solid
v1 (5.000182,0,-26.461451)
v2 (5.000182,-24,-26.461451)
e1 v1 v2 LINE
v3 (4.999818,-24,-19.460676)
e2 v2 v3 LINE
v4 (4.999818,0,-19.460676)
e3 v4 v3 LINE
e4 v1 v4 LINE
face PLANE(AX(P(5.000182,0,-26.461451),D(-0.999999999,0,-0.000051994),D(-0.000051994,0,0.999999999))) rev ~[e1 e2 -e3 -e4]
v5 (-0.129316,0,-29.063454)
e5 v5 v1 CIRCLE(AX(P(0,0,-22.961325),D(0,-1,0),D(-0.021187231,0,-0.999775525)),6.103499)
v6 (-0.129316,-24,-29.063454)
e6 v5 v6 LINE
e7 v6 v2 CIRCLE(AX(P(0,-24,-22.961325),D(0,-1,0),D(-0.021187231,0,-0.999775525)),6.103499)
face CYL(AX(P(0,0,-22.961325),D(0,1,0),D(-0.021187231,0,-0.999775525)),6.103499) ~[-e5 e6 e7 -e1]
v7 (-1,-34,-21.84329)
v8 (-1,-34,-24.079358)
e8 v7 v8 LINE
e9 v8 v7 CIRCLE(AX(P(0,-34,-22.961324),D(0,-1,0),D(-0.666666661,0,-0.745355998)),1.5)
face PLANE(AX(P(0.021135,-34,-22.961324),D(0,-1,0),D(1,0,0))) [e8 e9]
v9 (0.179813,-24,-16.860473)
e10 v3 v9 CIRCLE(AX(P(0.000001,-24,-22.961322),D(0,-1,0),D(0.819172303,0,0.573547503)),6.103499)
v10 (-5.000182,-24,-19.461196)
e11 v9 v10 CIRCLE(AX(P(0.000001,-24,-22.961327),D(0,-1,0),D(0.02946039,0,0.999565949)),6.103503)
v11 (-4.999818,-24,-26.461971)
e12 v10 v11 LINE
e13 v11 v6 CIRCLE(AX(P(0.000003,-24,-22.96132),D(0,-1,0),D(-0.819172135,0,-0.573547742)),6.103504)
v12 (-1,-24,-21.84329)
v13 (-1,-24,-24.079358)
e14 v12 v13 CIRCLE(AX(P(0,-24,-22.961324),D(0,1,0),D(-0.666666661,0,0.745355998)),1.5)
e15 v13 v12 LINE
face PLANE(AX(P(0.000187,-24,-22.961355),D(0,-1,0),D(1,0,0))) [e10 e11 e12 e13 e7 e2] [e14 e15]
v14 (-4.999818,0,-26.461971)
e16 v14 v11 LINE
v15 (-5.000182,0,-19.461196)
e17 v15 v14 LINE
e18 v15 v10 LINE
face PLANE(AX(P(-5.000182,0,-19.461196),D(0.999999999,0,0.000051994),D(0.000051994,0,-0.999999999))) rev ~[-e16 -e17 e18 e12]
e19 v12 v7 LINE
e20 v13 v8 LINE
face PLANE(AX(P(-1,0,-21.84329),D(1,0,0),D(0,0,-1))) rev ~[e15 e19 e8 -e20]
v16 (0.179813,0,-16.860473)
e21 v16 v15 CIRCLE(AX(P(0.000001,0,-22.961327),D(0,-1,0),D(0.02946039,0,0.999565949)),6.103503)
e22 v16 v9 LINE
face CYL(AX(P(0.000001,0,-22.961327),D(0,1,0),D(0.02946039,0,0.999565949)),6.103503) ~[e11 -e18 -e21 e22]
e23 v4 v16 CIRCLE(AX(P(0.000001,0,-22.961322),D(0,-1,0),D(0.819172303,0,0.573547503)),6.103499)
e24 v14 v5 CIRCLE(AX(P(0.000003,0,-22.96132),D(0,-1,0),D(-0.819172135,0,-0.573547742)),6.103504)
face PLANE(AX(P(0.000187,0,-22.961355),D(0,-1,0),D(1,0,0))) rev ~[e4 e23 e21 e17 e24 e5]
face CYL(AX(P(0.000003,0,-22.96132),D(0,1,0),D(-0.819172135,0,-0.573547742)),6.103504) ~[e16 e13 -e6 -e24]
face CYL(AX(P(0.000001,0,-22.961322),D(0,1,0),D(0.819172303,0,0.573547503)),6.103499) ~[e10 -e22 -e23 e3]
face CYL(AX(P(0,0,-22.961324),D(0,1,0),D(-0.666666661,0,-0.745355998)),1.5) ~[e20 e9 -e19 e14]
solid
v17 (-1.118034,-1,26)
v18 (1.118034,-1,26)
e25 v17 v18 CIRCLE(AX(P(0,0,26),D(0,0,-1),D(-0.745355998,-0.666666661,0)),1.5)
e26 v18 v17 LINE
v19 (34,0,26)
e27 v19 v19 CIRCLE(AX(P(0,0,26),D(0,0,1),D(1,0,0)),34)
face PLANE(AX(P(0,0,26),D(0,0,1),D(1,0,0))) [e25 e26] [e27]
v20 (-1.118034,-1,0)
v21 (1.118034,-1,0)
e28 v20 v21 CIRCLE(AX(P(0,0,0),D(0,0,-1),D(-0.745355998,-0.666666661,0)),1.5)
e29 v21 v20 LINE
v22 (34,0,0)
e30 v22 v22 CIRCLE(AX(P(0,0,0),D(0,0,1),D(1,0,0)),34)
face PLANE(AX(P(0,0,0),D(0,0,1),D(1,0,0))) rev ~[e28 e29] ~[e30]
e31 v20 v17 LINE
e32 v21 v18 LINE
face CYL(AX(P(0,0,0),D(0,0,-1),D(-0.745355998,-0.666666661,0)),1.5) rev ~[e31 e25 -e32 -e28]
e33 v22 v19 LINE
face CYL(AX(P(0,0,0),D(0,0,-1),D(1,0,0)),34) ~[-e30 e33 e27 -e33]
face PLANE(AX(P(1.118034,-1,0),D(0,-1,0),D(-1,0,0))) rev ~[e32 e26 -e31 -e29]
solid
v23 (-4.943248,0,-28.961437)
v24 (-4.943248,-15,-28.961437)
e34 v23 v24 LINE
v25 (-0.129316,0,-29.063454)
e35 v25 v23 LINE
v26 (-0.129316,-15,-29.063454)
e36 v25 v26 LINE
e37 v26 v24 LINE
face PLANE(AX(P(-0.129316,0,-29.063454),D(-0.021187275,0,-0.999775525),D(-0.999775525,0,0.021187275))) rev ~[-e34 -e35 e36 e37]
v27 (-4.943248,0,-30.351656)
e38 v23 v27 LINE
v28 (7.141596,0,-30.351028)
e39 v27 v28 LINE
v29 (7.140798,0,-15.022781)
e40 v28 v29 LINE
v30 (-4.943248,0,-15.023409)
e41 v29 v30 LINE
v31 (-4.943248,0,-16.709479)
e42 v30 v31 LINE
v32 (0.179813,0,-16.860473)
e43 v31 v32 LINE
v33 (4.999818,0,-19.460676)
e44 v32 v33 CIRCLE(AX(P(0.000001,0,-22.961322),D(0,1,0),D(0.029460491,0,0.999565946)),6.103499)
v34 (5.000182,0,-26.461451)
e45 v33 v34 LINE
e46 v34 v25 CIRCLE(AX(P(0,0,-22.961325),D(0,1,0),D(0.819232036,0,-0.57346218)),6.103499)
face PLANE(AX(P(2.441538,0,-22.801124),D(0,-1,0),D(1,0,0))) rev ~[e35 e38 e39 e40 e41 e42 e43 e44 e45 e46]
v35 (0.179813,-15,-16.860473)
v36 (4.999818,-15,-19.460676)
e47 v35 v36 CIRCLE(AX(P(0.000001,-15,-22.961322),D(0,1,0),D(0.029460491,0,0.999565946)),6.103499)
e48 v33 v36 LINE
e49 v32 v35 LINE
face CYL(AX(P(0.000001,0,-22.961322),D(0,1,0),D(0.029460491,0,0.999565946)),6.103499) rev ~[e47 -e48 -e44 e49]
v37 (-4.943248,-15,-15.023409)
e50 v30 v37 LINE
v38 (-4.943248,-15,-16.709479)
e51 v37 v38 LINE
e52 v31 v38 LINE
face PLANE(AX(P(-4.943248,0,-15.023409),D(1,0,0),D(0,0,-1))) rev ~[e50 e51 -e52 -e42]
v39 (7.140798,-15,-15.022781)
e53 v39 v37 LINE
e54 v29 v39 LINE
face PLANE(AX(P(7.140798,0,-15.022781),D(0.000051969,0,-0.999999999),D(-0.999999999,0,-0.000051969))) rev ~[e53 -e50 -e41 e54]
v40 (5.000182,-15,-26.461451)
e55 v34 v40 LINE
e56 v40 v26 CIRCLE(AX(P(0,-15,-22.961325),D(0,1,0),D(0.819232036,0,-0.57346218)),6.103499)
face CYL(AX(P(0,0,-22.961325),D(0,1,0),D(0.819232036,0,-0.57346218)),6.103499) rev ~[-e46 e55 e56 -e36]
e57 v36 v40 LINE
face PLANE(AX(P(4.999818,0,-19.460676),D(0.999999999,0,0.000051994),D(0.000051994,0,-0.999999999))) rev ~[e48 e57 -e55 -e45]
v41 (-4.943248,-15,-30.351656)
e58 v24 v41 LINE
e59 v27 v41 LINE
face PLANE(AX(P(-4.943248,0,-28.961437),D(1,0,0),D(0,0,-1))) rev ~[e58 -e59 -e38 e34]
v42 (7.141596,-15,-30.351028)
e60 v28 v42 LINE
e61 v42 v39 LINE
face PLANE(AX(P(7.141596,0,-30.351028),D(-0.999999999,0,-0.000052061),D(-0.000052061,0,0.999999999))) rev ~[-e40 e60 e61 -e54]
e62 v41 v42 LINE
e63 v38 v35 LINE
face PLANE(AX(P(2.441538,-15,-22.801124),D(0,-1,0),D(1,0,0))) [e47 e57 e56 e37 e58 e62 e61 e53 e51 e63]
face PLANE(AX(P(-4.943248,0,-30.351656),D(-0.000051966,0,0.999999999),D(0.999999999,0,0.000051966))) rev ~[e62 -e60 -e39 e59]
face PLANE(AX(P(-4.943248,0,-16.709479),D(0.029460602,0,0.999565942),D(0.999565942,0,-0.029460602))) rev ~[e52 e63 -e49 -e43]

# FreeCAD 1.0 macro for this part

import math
import FreeCAD as App
import Part
import Sketcher

V = App.Vector

doc = App.newDocument("Part")
body = doc.addObject("PartDesign::Body", "Body")

sketch1 = doc.addObject("Sketcher::SketchObject", "Sketch")
body.addObject(sketch1)
sketch1.AttachmentSupport = (doc.XY_Plane, [""])
sketch1.MapMode = "FlatFace"
sketch1.addGeometry([
    Part.Circle(V(0, 0, 0), V(0, 0, 1), 34),
    Part.LineSegment(V(1.1, -1, 0), V(-1.1, -1, 0)),
    Part.ArcOfCircle(Part.Circle(V(0, 0, 0), V(0, 0, 1), 1.5), math.radians(-42), math.radians(222)),
], False)
sketch1.addConstraint([
    Sketcher.Constraint("Coincident", 1, 1, 2, 1),
    Sketcher.Constraint("Coincident", 2, 2, 1, 2),
    Sketcher.Constraint("Horizontal", 1),
    Sketcher.Constraint("Coincident", 0, 3, -1, 1),
    Sketcher.Constraint("Coincident", 2, 3, -1, 1),
    Sketcher.Constraint("Diameter", 0, 68.0),
    Sketcher.Constraint("Radius", 2, 1.5),
    Sketcher.Constraint("DistanceY", 1, 1, -1, 1, 1.0),
])
pad1 = doc.addObject("PartDesign::Pad", "Pad")
body.addObject(pad1)
pad1.Profile = sketch1
pad1.Length = 26
body2 = doc.addObject("PartDesign::Body", "Body001")

sketch2 = doc.addObject("Sketcher::SketchObject", "Sketch001")
body2.addObject(sketch2)
sketch2.AttachmentSupport = (doc.getObject("XZ_Plane001"), [""])
sketch2.MapMode = "FlatFace"
sketch2.addGeometry([
    Part.ArcOfCircle(Part.Circle(V(0, -23, 0), V(0, 0, 1), 1.5), math.radians(-132), math.radians(132)),
    Part.LineSegment(V(-1, -21.8, 0), V(-1, -24.1, 0)),
], False)
sketch2.addConstraint([
    Sketcher.Constraint("Coincident", 0, 1, 1, 2),
    Sketcher.Constraint("Coincident", 1, 1, 0, 2),
    Sketcher.Constraint("Vertical", 1),
    Sketcher.Constraint("PointOnObject", 0, 3, -2),
    Sketcher.Constraint("Radius", 0, 1.5),
    Sketcher.Constraint("DistanceX", 0, 1, -1, 1, 1.0),
    Sketcher.Constraint("DistanceY", 1, 1, -1, 1, 21.84329),
])
pad2 = doc.addObject("PartDesign::Pad", "Pad001")
body2.addObject(pad2)
pad2.Profile = sketch2
pad2.Length = 34

sketch3 = doc.addObject("Sketcher::SketchObject", "Sketch002")
body2.addObject(sketch3)
sketch3.AttachmentSupport = (doc.getObject("XZ_Plane001"), [""])
sketch3.MapMode = "FlatFace"
sketch3.addGeometry([
    Part.LineSegment(V(5, -26.5, 0), V(5, -19.5, 0)),
    Part.ArcOfCircle(Part.Circle(V(0, -23, 0), V(0, 0, 1), 6.1), math.radians(35), math.radians(88)),
    Part.ArcOfCircle(Part.Circle(V(0, -23, 0), V(0, 0, 1), 6.1), math.radians(88), math.radians(145)),
    Part.LineSegment(V(-5, -19.5, 0), V(-5, -26.5, 0)),
    Part.ArcOfCircle(Part.Circle(V(0, -23, 0), V(0, 0, 1), 6.1), math.radians(-145), math.radians(-91)),
    Part.ArcOfCircle(Part.Circle(V(0, -23, 0), V(0, 0, 1), 6.1), math.radians(-91), math.radians(-35)),
    Part.LineSegment(V(-1, -24.1, 0), V(-1, -21.8, 0)),
    Part.ArcOfCircle(Part.Circle(V(0, -23, 0), V(0, 0, 1), 1.5), math.radians(-132), math.radians(132)),
], False)
sketch3.addConstraint([
    Sketcher.Constraint("Coincident", 0, 2, 1, 1),
    Sketcher.Constraint("Tangent", 1, 2, 2, 1),
    Sketcher.Constraint("Coincident", 2, 2, 3, 1),
    Sketcher.Constraint("Coincident", 3, 2, 4, 1),
    Sketcher.Constraint("Tangent", 4, 2, 5, 1),
    Sketcher.Constraint("Coincident", 5, 2, 0, 1),
    Sketcher.Constraint("Coincident", 6, 1, 7, 1),
    Sketcher.Constraint("Coincident", 7, 2, 6, 2),
    Sketcher.Constraint("Vertical", 6),
    Sketcher.Constraint("Coincident", 4, 3, 1, 3),
    Sketcher.Constraint("Coincident", 7, 3, 1, 3),
    Sketcher.Constraint("Equal", 2, 4),
    Sketcher.Constraint("Equal", 1, 5),
    Sketcher.Constraint("PointOnObject", 1, 3, -2),
    Sketcher.Constraint("PointOnObject", 2, 3, -2),
    Sketcher.Constraint("Parallel", 0, 3),
    Sketcher.Constraint("Equal", 0, 3),
    Sketcher.Constraint("Radius", 7, 1.5),
    Sketcher.Constraint("DistanceX", 6, 1, -1, 1, 1.0),
    Sketcher.Constraint("Radius", 1, 6.103499),
    Sketcher.Constraint("DistanceX", 3, 2, 4, 2, 4.870502),
    Sketcher.Constraint("DistanceY", 4, 3, -1, 1, 22.96132),
    Sketcher.Constraint("DistanceX", -1, 1, 0, 2, 4.999818),
    Sketcher.Constraint("DistanceX", -1, 1, 5, 2, 5.000182),
    Sketcher.Constraint("DistanceX", 4, 3, 1, 2, 0.17981),
])
pad3 = doc.addObject("PartDesign::Pad", "Pad002")
body2.addObject(pad3)
pad3.Profile = sketch3
pad3.Length = 24
body3 = doc.addObject("PartDesign::Body", "Body002")

sketch4 = doc.addObject("Sketcher::SketchObject", "Sketch003")
body3.addObject(sketch4)
sketch4.AttachmentSupport = (doc.getObject("XZ_Plane002"), [""])
sketch4.MapMode = "FlatFace"
sketch4.addGeometry([
    Part.LineSegment(V(5, -19.5, 0), V(5, -26.5, 0)),
    Part.ArcOfCircle(Part.Circle(V(0, -23, 0), V(0, 0, 1), 6.1), math.radians(-91), math.radians(-35)),
    Part.LineSegment(V(-0.1, -29.1, 0), V(-4.9, -29, 0)),
    Part.LineSegment(V(-4.9, -29, 0), V(-4.9, -30.4, 0)),
    Part.LineSegment(V(-4.9, -30.4, 0), V(7.1, -30.4, 0)),
    Part.LineSegment(V(7.1, -30.4, 0), V(7.1, -15, 0)),
    Part.LineSegment(V(7.1, -15, 0), V(-4.9, -15, 0)),
    Part.LineSegment(V(-4.9, -15, 0), V(-4.9, -16.7, 0)),
    Part.LineSegment(V(-4.9, -16.7, 0), V(0.2, -16.9, 0)),
    Part.ArcOfCircle(Part.Circle(V(0, -23, 0), V(0, 0, 1), 6.1), math.radians(35), math.radians(88)),
], False)
sketch4.addConstraint([
    Sketcher.Constraint("Coincident", 0, 2, 1, 2),
    Sketcher.Constraint("Tangent", 1, 1, 2, 1),
    Sketcher.Constraint("Coincident", 2, 2, 3, 1),
    Sketcher.Constraint("Coincident", 3, 2, 4, 1),
    Sketcher.Constraint("Coincident", 4, 2, 5, 1),
    Sketcher.Constraint("Coincident", 5, 2, 6, 1),
    Sketcher.Constraint("Coincident", 6, 2, 7, 1),
    Sketcher.Constraint("Coincident", 7, 2, 8, 1),
    Sketcher.Constraint("Tangent", 8, 2, 9, 2),
    Sketcher.Constraint("Coincident", 9, 1, 0, 1),
    Sketcher.Constraint("Vertical", 3),
    Sketcher.Constraint("Vertical", 7),
    Sketcher.Constraint("Coincident", 9, 3, 1, 3),
    Sketcher.Constraint("Equal", 1, 9),
    Sketcher.Constraint("PointOnObject", 1, 3, -2),
    Sketcher.Constraint("Perpendicular", 0, 4),
    Sketcher.Constraint("Perpendicular", 4, 5),
    Sketcher.Constraint("Perpendicular", 5, 6),
    Sketcher.Constraint("Vertical", 3, 2, 6, 2),
    Sketcher.Constraint("Radius", 1, 6.103499),
    Sketcher.Constraint("DistanceY", 3, 2, 3, 1, 1.390219),
    Sketcher.Constraint("DistanceY", 7, 2, 7, 1, 1.68607),
    Sketcher.Constraint("DistanceX", -1, 1, 5, 2, 7.140798),
    Sketcher.Constraint("DistanceY", 7, 2, 5, 2, 1.686698),
    Sketcher.Constraint("DistanceX", -1, 1, 0, 2, 5.000182),
    Sketcher.Constraint("DistanceY", 0, 2, -1, 1, 26.461451),
    Sketcher.Constraint("DistanceY", 5, 2, -1, 1, 15.022781),
    Sketcher.Constraint("DistanceY", 1, 1, 1, 3, 6.102129),
    Sketcher.Constraint("DistanceX", 2, 2, 1, 3, 4.943248),
])
pad4 = doc.addObject("PartDesign::Pad", "Pad003")
body3.addObject(pad4)
pad4.Profile = sketch4
pad4.Length = 15

doc.recompute()
